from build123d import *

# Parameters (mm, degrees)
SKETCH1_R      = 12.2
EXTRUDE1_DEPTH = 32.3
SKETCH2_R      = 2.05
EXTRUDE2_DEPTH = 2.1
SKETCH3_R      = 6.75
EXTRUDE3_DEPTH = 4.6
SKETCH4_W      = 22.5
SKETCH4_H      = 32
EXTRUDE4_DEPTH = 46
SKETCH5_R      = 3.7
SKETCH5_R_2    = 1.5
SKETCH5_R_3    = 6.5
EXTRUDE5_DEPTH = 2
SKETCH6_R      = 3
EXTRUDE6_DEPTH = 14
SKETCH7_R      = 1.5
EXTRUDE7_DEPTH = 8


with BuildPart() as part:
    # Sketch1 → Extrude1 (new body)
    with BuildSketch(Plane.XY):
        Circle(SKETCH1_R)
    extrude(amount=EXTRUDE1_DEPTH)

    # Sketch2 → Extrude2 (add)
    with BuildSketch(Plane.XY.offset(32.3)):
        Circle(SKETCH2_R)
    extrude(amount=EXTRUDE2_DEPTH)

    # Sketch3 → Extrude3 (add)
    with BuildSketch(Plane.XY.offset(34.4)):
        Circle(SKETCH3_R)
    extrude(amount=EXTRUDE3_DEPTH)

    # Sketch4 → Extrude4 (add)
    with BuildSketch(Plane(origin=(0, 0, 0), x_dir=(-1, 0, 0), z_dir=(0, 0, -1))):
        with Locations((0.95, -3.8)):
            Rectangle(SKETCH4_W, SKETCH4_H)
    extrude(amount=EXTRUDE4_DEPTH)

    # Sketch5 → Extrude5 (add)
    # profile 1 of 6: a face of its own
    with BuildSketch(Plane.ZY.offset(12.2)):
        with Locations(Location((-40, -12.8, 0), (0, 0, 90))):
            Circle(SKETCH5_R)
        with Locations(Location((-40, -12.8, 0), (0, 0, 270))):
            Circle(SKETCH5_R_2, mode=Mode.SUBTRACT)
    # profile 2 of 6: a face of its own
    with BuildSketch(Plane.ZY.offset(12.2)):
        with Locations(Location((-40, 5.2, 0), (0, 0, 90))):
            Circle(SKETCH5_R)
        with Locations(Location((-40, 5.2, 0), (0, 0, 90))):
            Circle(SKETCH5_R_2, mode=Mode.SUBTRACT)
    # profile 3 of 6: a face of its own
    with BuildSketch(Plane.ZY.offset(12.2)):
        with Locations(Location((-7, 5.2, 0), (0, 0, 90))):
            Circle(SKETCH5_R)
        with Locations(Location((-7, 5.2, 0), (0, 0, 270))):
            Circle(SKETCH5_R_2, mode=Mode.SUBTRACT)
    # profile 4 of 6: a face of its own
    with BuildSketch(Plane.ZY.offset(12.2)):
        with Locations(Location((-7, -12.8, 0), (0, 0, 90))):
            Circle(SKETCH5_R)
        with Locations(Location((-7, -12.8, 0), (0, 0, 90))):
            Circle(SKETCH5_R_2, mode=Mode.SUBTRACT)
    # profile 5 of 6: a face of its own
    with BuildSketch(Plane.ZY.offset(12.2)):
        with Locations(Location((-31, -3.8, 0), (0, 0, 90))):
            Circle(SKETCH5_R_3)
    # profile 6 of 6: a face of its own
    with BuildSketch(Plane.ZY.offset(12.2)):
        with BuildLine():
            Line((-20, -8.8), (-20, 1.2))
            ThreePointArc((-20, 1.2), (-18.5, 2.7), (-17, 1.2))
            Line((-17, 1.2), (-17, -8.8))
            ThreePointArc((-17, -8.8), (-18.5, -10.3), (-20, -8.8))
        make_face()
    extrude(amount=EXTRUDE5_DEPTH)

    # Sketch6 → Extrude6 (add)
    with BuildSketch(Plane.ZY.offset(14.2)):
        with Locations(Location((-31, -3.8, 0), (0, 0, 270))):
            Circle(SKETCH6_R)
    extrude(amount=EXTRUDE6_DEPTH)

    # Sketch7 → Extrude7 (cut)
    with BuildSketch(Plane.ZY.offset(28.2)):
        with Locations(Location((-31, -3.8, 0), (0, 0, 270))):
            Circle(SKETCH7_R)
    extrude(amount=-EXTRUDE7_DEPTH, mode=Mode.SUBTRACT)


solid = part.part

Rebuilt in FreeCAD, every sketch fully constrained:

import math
import FreeCAD as App
import Part
import Sketcher

V = App.Vector


def add_polygon(sketch, points):
    """Adds a closed chain of lines whose ends are joined by coincident constraints."""
    first, n = sketch.GeometryCount, len(points)
    for a, b in zip(points, points[1:] + points[:1]):
        sketch.addGeometry(Part.LineSegment(App.Vector(*a, 0), App.Vector(*b, 0)), False)
    for i in range(n):
        sketch.addConstraint(Sketcher.Constraint("Coincident", first + i, 2, first + (i + 1) % n, 1))

doc = App.newDocument("Part")
body = doc.addObject("PartDesign::Body", "Body")

# Sketch on XY plane
sketch1 = body.newObject("Sketcher::SketchObject", "Sketch")
sketch1.AttachmentSupport = (doc.getObject("XY_Plane"), [""])
sketch1.MapMode = "FlatFace"
sketch1.addGeometry(Part.Circle(V(0, 0, 0), V(0, 0, 1), 12.2), False)
sketch1.addConstraint(Sketcher.Constraint("Coincident", 0, 3, -1, 1))
sketch1.addConstraint(Sketcher.Constraint("Diameter", 0, 24.4))
pad1 = body.newObject("PartDesign::Pad", "Pad")
pad1.Profile = sketch1
pad1.Length = 32.3

# Sketch on XY plane
sketch2 = body.newObject("Sketcher::SketchObject", "Sketch001")
sketch2.AttachmentSupport = (doc.getObject("XY_Plane"), [""])
sketch2.MapMode = "FlatFace"
sketch2.AttachmentOffset = App.Placement(V(0, 0, 32.3), App.Rotation())
sketch2.addGeometry(Part.Circle(V(0, 0, 0), V(0, 0, 1), 2.05), False)
sketch2.addConstraint(Sketcher.Constraint("Coincident", 0, 3, -1, 1))
sketch2.addConstraint(Sketcher.Constraint("Diameter", 0, 4.1))
pad2 = body.newObject("PartDesign::Pad", "Pad001")
pad2.Profile = sketch2
pad2.Length = 2.1

# Sketch on XY plane
sketch3 = body.newObject("Sketcher::SketchObject", "Sketch002")
sketch3.AttachmentSupport = (doc.getObject("XY_Plane"), [""])
sketch3.MapMode = "FlatFace"
sketch3.AttachmentOffset = App.Placement(V(0, 0, 34.4), App.Rotation())
sketch3.addGeometry(Part.Circle(V(0, 0, 0), V(0, 0, 1), 6.75), False)
sketch3.addConstraint(Sketcher.Constraint("Coincident", 0, 3, -1, 1))
sketch3.addConstraint(Sketcher.Constraint("Diameter", 0, 13.5))
pad3 = body.newObject("PartDesign::Pad", "Pad002")
pad3.Profile = sketch3
pad3.Length = 4.6

# Sketch on XY plane
sketch4 = body.newObject("Sketcher::SketchObject", "Sketch003")
sketch4.AttachmentSupport = (doc.getObject("XY_Plane"), [""])
sketch4.MapMode = "FlatFace"
add_polygon(sketch4, [(10.3, 12.2), (10.3, -19.8), (-12.2, -19.8), (-12.2, 12.2)])  # lines 0-3
sketch4.addConstraint(Sketcher.Constraint("Vertical", 0))
sketch4.addConstraint(Sketcher.Constraint("Horizontal", 1))
sketch4.addConstraint(Sketcher.Constraint("Vertical", 2))
sketch4.addConstraint(Sketcher.Constraint("Horizontal", 3))
sketch4.addConstraint(Sketcher.Constraint("DistanceY", 0, 2, 0, 1, 32.0))
sketch4.addConstraint(Sketcher.Constraint("DistanceX", 1, 2, 1, 1, 22.5))
sketch4.addConstraint(Sketcher.Constraint("DistanceX", -1, 1, 0, 2, 10.3))
sketch4.addConstraint(Sketcher.Constraint("DistanceY", 0, 2, -1, 1, 19.8))
pad4 = body.newObject("PartDesign::Pad", "Pad003")
pad4.Profile = sketch4
pad4.Length = 46
pad4.Reversed = True

# Sketch on YZ plane
sketch5 = body.newObject("Sketcher::SketchObject", "Sketch004")
sketch5.AttachmentSupport = (doc.getObject("YZ_Plane"), [""])
sketch5.MapMode = "FlatFace"
sketch5.AttachmentOffset = App.Placement(V(0, 0, -12.2), App.Rotation())
sketch5.addGeometry(Part.Circle(V(-12.8, -40, 0), V(0, 0, 1), 3.7), False)
sketch5.addGeometry(Part.Circle(V(-12.8, -40, 0), V(0, 0, 1), 1.5), False)
sketch5.addGeometry(Part.Circle(V(5.2, -40, 0), V(0, 0, 1), 3.7), False)
sketch5.addGeometry(Part.Circle(V(5.2, -40, 0), V(0, 0, 1), 1.5), False)
sketch5.addGeometry(Part.Circle(V(5.2, -7, 0), V(0, 0, 1), 3.7), False)
sketch5.addGeometry(Part.Circle(V(5.2, -7, 0), V(0, 0, 1), 1.5), False)
sketch5.addGeometry(Part.Circle(V(-12.8, -7, 0), V(0, 0, 1), 3.7), False)
sketch5.addGeometry(Part.Circle(V(-12.8, -7, 0), V(0, 0, 1), 1.5), False)
sketch5.addGeometry(Part.Circle(V(-3.8, -31, 0), V(0, 0, 1), 6.5), False)
sketch5.addGeometry(Part.LineSegment(V(1.2, -20, 0), V(-8.8, -20, 0)), False)
sketch5.addGeometry(Part.ArcOfCircle(Part.Circle(V(-8.8, -18.5, 0), V(0, 0, 1), 1.5), math.radians(90), math.radians(270)), False)
sketch5.addGeometry(Part.LineSegment(V(-8.8, -17, 0), V(1.2, -17, 0)), False)
sketch5.addGeometry(Part.ArcOfCircle(Part.Circle(V(1.2, -18.5, 0), V(0, 0, 1), 1.5), math.radians(-90), math.radians(90)), False)
sketch5.addConstraint(Sketcher.Constraint("Tangent", 9, 2, 10, 2))
sketch5.addConstraint(Sketcher.Constraint("Tangent", 10, 1, 11, 1))
sketch5.addConstraint(Sketcher.Constraint("Tangent", 11, 2, 12, 2))
sketch5.addConstraint(Sketcher.Constraint("Tangent", 12, 1, 9, 1))
sketch5.addConstraint(Sketcher.Constraint("Horizontal", 9))
sketch5.addConstraint(Sketcher.Constraint("Horizontal", 11))
sketch5.addConstraint(Sketcher.Constraint("Coincident", 1, 3, 0, 3))
sketch5.addConstraint(Sketcher.Constraint("Coincident", 3, 3, 2, 3))
sketch5.addConstraint(Sketcher.Constraint("Coincident", 5, 3, 4, 3))
sketch5.addConstraint(Sketcher.Constraint("Coincident", 7, 3, 6, 3))
sketch5.addConstraint(Sketcher.Constraint("Equal", 0, 2))
sketch5.addConstraint(Sketcher.Constraint("Equal", 1, 3))
sketch5.addConstraint(Sketcher.Constraint("Equal", 2, 4))
sketch5.addConstraint(Sketcher.Constraint("Equal", 3, 5))
sketch5.addConstraint(Sketcher.Constraint("Equal", 4, 6))
sketch5.addConstraint(Sketcher.Constraint("Equal", 5, 7))
sketch5.addConstraint(Sketcher.Constraint("Equal", 7, 10))
sketch5.addConstraint(Sketcher.Constraint("Horizontal", 1, 3, 2, 3))
sketch5.addConstraint(Sketcher.Constraint("Horizontal", 5, 3, 6, 3))
sketch5.addConstraint(Sketcher.Constraint("Vertical", 3, 3, 4, 3))
sketch5.addConstraint(Sketcher.Constraint("Vertical", 1, 3, 6, 3))
sketch5.addConstraint(Sketcher.Constraint("Diameter", 1, 3.0))
sketch5.addConstraint(Sketcher.Constraint("Diameter", 8, 13.0))
sketch5.addConstraint(Sketcher.Constraint("Diameter", 0, 7.4))
sketch5.addConstraint(Sketcher.Constraint("DistanceX", 9, 2, 9, 1, 10.0))
sketch5.addConstraint(Sketcher.Constraint("DistanceY", 0, 3, -1, 1, 40.0))
sketch5.addConstraint(Sketcher.Constraint("DistanceY", 4, 3, -1, 1, 7.0))
sketch5.addConstraint(Sketcher.Constraint("DistanceY", 8, 3, -1, 1, 31.0))
sketch5.addConstraint(Sketcher.Constraint("DistanceY", 9, 2, -1, 1, 20.0))
sketch5.addConstraint(Sketcher.Constraint("DistanceX", 0, 3, 2, 3, 18.0))
sketch5.addConstraint(Sketcher.Constraint("DistanceX", 0, 3, 8, 3, 9.0))
sketch5.addConstraint(Sketcher.Constraint("DistanceX", 6, 3, 10, 3, 4.0))
sketch5.addConstraint(Sketcher.Constraint("DistanceX", 0, 3, -1, 1, 12.8))
pad5 = body.newObject("PartDesign::Pad", "Pad004")
pad5.Profile = sketch5
pad5.Length = 2
pad5.Reversed = True

# Sketch on YZ plane
sketch6 = body.newObject("Sketcher::SketchObject", "Sketch005")
sketch6.AttachmentSupport = (doc.getObject("YZ_Plane"), [""])
sketch6.MapMode = "FlatFace"
sketch6.AttachmentOffset = App.Placement(V(0, 0, -14.2), App.Rotation())
sketch6.addGeometry(Part.Circle(V(-3.8, -31, 0), V(0, 0, 1), 3), False)
sketch6.addConstraint(Sketcher.Constraint("Diameter", 0, 6.0))
sketch6.addConstraint(Sketcher.Constraint("DistanceY", 0, 3, -1, 1, 31.0))
sketch6.addConstraint(Sketcher.Constraint("DistanceX", 0, 3, -1, 1, 3.8))
pad6 = body.newObject("PartDesign::Pad", "Pad005")
pad6.Profile = sketch6
pad6.Length = 14
pad6.Reversed = True

# Sketch on YZ plane
sketch7 = body.newObject("Sketcher::SketchObject", "Sketch006")
sketch7.AttachmentSupport = (doc.getObject("YZ_Plane"), [""])
sketch7.MapMode = "FlatFace"
sketch7.AttachmentOffset = App.Placement(V(0, 0, -28.2), App.Rotation())
sketch7.addGeometry(Part.Circle(V(-3.8, -31, 0), V(0, 0, 1), 1.5), False)
sketch7.addConstraint(Sketcher.Constraint("Diameter", 0, 3.0))
sketch7.addConstraint(Sketcher.Constraint("DistanceY", 0, 3, -1, 1, 31.0))
sketch7.addConstraint(Sketcher.Constraint("DistanceX", 0, 3, -1, 1, 3.8))
pocket1 = body.newObject("PartDesign::Pocket", "Pocket")
pocket1.Profile = sketch7
pocket1.Length = 8
pocket1.Reversed = True

doc.recompute()
